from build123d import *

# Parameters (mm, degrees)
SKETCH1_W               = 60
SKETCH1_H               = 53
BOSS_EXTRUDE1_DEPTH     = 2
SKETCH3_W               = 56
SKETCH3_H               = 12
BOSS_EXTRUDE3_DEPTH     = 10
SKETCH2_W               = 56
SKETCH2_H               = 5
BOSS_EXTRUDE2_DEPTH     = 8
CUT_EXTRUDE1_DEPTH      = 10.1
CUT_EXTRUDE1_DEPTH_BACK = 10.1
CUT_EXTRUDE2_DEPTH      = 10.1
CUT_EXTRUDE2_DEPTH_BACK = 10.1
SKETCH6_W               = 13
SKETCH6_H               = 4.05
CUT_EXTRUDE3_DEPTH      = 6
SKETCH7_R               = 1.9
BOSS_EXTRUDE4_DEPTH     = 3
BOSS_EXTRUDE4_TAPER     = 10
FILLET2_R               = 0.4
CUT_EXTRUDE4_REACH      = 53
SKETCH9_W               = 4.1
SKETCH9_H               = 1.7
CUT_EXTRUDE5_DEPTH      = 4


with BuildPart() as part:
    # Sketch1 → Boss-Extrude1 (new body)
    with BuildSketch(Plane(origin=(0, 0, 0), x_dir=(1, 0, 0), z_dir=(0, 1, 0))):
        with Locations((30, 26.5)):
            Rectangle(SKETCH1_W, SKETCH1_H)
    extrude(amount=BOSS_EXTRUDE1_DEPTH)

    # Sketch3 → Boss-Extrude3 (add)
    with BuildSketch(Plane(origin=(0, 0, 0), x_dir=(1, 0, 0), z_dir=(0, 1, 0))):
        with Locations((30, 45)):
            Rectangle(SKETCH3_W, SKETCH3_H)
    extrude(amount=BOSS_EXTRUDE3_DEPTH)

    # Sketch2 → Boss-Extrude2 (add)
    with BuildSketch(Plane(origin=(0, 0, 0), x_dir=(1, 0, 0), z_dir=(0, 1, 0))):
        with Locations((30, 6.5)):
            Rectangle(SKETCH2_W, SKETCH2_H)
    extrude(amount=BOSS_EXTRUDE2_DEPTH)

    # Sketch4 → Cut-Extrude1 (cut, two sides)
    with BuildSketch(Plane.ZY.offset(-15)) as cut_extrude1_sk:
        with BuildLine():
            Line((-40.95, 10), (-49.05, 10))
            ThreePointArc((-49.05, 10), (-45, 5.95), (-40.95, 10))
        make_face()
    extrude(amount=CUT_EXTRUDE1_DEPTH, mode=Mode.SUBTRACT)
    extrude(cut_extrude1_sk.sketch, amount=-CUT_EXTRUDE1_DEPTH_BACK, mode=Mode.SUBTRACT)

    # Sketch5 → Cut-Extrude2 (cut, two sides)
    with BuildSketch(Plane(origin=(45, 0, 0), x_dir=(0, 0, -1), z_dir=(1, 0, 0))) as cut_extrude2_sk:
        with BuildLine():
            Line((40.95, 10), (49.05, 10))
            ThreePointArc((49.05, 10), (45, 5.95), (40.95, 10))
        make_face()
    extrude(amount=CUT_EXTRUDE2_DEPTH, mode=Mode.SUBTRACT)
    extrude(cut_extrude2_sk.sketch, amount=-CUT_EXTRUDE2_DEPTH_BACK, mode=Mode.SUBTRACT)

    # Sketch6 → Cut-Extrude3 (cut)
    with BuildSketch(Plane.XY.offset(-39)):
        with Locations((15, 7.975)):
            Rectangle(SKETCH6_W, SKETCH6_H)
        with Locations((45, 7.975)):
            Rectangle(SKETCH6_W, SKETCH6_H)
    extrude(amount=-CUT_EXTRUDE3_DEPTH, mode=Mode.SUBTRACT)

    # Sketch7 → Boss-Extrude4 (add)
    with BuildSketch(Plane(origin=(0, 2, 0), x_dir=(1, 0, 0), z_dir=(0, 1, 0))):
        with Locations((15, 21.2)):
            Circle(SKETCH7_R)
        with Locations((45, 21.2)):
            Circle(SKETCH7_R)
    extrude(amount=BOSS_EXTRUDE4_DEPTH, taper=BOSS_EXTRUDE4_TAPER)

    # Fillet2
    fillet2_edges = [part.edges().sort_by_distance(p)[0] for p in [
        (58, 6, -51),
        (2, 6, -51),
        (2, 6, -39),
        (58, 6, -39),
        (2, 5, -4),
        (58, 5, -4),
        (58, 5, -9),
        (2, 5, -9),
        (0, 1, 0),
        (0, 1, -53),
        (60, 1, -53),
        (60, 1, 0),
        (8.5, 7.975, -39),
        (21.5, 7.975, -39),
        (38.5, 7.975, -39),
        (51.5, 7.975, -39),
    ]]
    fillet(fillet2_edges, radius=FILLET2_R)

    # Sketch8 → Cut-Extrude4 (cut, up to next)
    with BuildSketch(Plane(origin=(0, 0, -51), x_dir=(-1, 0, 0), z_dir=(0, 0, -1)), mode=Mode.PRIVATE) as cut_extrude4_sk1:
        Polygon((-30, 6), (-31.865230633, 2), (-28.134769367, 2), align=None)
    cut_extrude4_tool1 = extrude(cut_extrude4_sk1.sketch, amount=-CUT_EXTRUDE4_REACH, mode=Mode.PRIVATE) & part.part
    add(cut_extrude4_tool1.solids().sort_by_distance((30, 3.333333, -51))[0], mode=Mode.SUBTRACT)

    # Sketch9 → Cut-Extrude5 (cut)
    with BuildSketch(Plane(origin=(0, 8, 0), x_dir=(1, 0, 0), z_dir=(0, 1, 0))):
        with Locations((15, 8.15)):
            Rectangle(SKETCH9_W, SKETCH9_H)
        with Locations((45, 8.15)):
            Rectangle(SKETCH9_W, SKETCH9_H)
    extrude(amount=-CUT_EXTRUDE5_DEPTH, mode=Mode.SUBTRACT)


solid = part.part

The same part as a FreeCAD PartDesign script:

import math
import FreeCAD as App
import Part
import Sketcher
from FreeCAD import Vector
Q = App.Units.Quantity


def edges_at(feature, points):
    """Names of the edges that pass closest to the given points."""
    edges = feature.Shape.Edges
    near = lambda p: min(range(len(edges)), key=lambda i: edges[i].distToShape(Part.Vertex(*p))[0])
    return sorted({f"Edge{near(p) + 1}" for p in points})

doc = App.newDocument("Part")
body = doc.addObject("PartDesign::Body", "Body")

# Sketch on XZ plane
sketch1 = body.newObject("Sketcher::SketchObject", "Sketch")
sketch1.AttachmentSupport = (doc.getObject("XZ_Plane"), [""])
sketch1.MapMode = "FlatFace"
sketch1.addGeometry(Part.LineSegment(Vector(0, -53, 0), Vector(0, 0, 0)), False)
sketch1.addGeometry(Part.LineSegment(Vector(0, 0, 0), Vector(60, 0, 0)), False)
sketch1.addGeometry(Part.LineSegment(Vector(60, 0, 0), Vector(60, -53, 0)), False)
sketch1.addGeometry(Part.LineSegment(Vector(60, -53, 0), Vector(0, -53, 0)), False)
sketch1.addConstraint(Sketcher.Constraint("Coincident", 0, 2, 1, 1))
sketch1.addConstraint(Sketcher.Constraint("Coincident", 1, 2, 2, 1))
sketch1.addConstraint(Sketcher.Constraint("Coincident", 2, 2, 3, 1))
sketch1.addConstraint(Sketcher.Constraint("Coincident", 3, 2, 0, 1))
sketch1.addConstraint(Sketcher.Constraint("Vertical", 0))
sketch1.addConstraint(Sketcher.Constraint("Horizontal", 1))
sketch1.addConstraint(Sketcher.Constraint("Vertical", 2))
sketch1.addConstraint(Sketcher.Constraint("Horizontal", 3))
sketch1.addConstraint(Sketcher.Constraint("Coincident", 0, 2, -1, 1))
sketch1.addConstraint(Sketcher.Constraint("DistanceX", 1, 1, 1, 2, Q("60 mm")))
sketch1.addConstraint(Sketcher.Constraint("DistanceY", 0, 1, 0, 2, Q("53 mm")))
pad1 = body.newObject("PartDesign::Pad", "Pad")
pad1.Profile = sketch1
pad1.Length = 2
pad1.Reversed = True

# Sketch on XZ plane
sketch2 = body.newObject("Sketcher::SketchObject", "Sketch001")
sketch2.AttachmentSupport = (doc.getObject("XZ_Plane"), [""])
sketch2.MapMode = "FlatFace"
sketch2.addGeometry(Part.LineSegment(Vector(2, -51, 0), Vector(2, -39, 0)), False)
sketch2.addGeometry(Part.LineSegment(Vector(2, -39, 0), Vector(58, -39, 0)), False)
sketch2.addGeometry(Part.LineSegment(Vector(58, -39, 0), Vector(58, -51, 0)), False)
sketch2.addGeometry(Part.LineSegment(Vector(58, -51, 0), Vector(2, -51, 0)), False)
sketch2.addConstraint(Sketcher.Constraint("Coincident", 0, 2, 1, 1))
sketch2.addConstraint(Sketcher.Constraint("Coincident", 1, 2, 2, 1))
sketch2.addConstraint(Sketcher.Constraint("Coincident", 2, 2, 3, 1))
sketch2.addConstraint(Sketcher.Constraint("Coincident", 3, 2, 0, 1))
sketch2.addConstraint(Sketcher.Constraint("Vertical", 0))
sketch2.addConstraint(Sketcher.Constraint("Horizontal", 1))
sketch2.addConstraint(Sketcher.Constraint("Vertical", 2))
sketch2.addConstraint(Sketcher.Constraint("Horizontal", 3))
sketch2.addConstraint(Sketcher.Constraint("DistanceX", 1, 1, 1, 2, Q("56 mm")))
sketch2.addConstraint(Sketcher.Constraint("DistanceY", 0, 1, 0, 2, Q("12 mm")))
sketch2.addConstraint(Sketcher.Constraint("DistanceX", -1, 1, 0, 2, Q("2 mm")))
sketch2.addConstraint(Sketcher.Constraint("DistanceY", 0, 2, -1, 1, Q("39 mm")))
pad2 = body.newObject("PartDesign::Pad", "Pad001")
pad2.Profile = sketch2
pad2.Length = 10
pad2.Reversed = True

# Sketch on XZ plane
sketch3 = body.newObject("Sketcher::SketchObject", "Sketch002")
sketch3.AttachmentSupport = (doc.getObject("XZ_Plane"), [""])
sketch3.MapMode = "FlatFace"
sketch3.addGeometry(Part.LineSegment(Vector(2, -9, 0), Vector(2, -4, 0)), False)
sketch3.addGeometry(Part.LineSegment(Vector(2, -4, 0), Vector(58, -4, 0)), False)
sketch3.addGeometry(Part.LineSegment(Vector(58, -4, 0), Vector(58, -9, 0)), False)
sketch3.addGeometry(Part.LineSegment(Vector(58, -9, 0), Vector(2, -9, 0)), False)
sketch3.addConstraint(Sketcher.Constraint("Coincident", 0, 2, 1, 1))
sketch3.addConstraint(Sketcher.Constraint("Coincident", 1, 2, 2, 1))
sketch3.addConstraint(Sketcher.Constraint("Coincident", 2, 2, 3, 1))
sketch3.addConstraint(Sketcher.Constraint("Coincident", 3, 2, 0, 1))
sketch3.addConstraint(Sketcher.Constraint("Vertical", 0))
sketch3.addConstraint(Sketcher.Constraint("Horizontal", 1))
sketch3.addConstraint(Sketcher.Constraint("Vertical", 2))
sketch3.addConstraint(Sketcher.Constraint("Horizontal", 3))
sketch3.addConstraint(Sketcher.Constraint("DistanceX", 1, 1, 1, 2, Q("56 mm")))
sketch3.addConstraint(Sketcher.Constraint("DistanceY", 0, 1, 0, 2, Q("5 mm")))
sketch3.addConstraint(Sketcher.Constraint("DistanceX", -1, 1, 0, 2, Q("2 mm")))
sketch3.addConstraint(Sketcher.Constraint("DistanceY", 0, 2, -1, 1, Q("4 mm")))
pad3 = body.newObject("PartDesign::Pad", "Pad002")
pad3.Profile = sketch3
pad3.Length = 8
pad3.Reversed = True

# Sketch on YZ plane
sketch4 = body.newObject("Sketcher::SketchObject", "Sketch003")
sketch4.AttachmentSupport = (doc.getObject("YZ_Plane"), [""])
sketch4.MapMode = "FlatFace"
sketch4.AttachmentOffset = App.Placement(Vector(0, 0, 15), App.Rotation())
sketch4.addGeometry(Part.LineSegment(Vector(10, -41, 0), Vector(10, -49, 0)), False)
sketch4.addGeometry(Part.ArcOfCircle(Part.Circle(Vector(10, -45, 0), Vector(0, 0, 1), 4), math.radians(90), math.radians(270)), False)
sketch4.addConstraint(Sketcher.Constraint("Coincident", 0, 1, 1, 1))
sketch4.addConstraint(Sketcher.Constraint("Coincident", 1, 2, 0, 2))
sketch4.addConstraint(Sketcher.Constraint("Vertical", 0))
sketch4.addConstraint(Sketcher.Constraint("Vertical", 1, 3, 0, 1))
sketch4.addConstraint(Sketcher.Constraint("Radius", 1, Q("4.05 mm")))
sketch4.addConstraint(Sketcher.Constraint("DistanceX", -1, 1, 1, 3, Q("10 mm")))
sketch4.addConstraint(Sketcher.Constraint("DistanceY", 1, 3, -1, 1, Q("45 mm")))
pocket1 = body.newObject("PartDesign::Pocket", "Pocket")
pocket1.Profile = sketch4
pocket1.Type = "TwoLengths"
pocket1.Length = 10.1
pocket1.Length2 = 10.1

# Sketch on YZ plane
sketch5 = body.newObject("Sketcher::SketchObject", "Sketch004")
sketch5.AttachmentSupport = (doc.getObject("YZ_Plane"), [""])
sketch5.MapMode = "FlatFace"
sketch5.AttachmentOffset = App.Placement(Vector(0, 0, 45), App.Rotation())
sketch5.addGeometry(Part.LineSegment(Vector(10, -49, 0), Vector(10, -41, 0)), False)
sketch5.addGeometry(Part.ArcOfCircle(Part.Circle(Vector(10, -45, 0), Vector(0, 0, 1), 4), math.radians(90), math.radians(270)), False)
sketch5.addConstraint(Sketcher.Constraint("Coincident", 0, 1, 1, 2))
sketch5.addConstraint(Sketcher.Constraint("Coincident", 1, 1, 0, 2))
sketch5.addConstraint(Sketcher.Constraint("Vertical", 0))
sketch5.addConstraint(Sketcher.Constraint("Vertical", 1, 3, 0, 1))
sketch5.addConstraint(Sketcher.Constraint("Radius", 1, Q("4.05 mm")))
sketch5.addConstraint(Sketcher.Constraint("DistanceX", -1, 1, 1, 3, Q("10 mm")))
sketch5.addConstraint(Sketcher.Constraint("DistanceY", 1, 3, -1, 1, Q("45 mm")))
pocket2 = body.newObject("PartDesign::Pocket", "Pocket001")
pocket2.Profile = sketch5
pocket2.Type = "TwoLengths"
pocket2.Length = 10.1
pocket2.Length2 = 10.1
pocket2.Reversed = True

# Sketch on XY plane
sketch6 = body.newObject("Sketcher::SketchObject", "Sketch005")
sketch6.AttachmentSupport = (doc.getObject("XY_Plane"), [""])
sketch6.MapMode = "FlatFace"
sketch6.AttachmentOffset = App.Placement(Vector(0, 0, -39), App.Rotation())
sketch6.addGeometry(Part.LineSegment(Vector(8.5, 10, 0), Vector(8.5, 6, 0)), False)
sketch6.addGeometry(Part.LineSegment(Vector(8.5, 6, 0), Vector(21.5, 6, 0)), False)
sketch6.addGeometry(Part.LineSegment(Vector(21.5, 6, 0), Vector(21.5, 10, 0)), False)
sketch6.addGeometry(Part.LineSegment(Vector(21.5, 10, 0), Vector(8.5, 10, 0)), False)
sketch6.addGeometry(Part.LineSegment(Vector(38.5, 10, 0), Vector(38.5, 6, 0)), False)
sketch6.addGeometry(Part.LineSegment(Vector(38.5, 6, 0), Vector(51.5, 6, 0)), False)
sketch6.addGeometry(Part.LineSegment(Vector(51.5, 6, 0), Vector(51.5, 10, 0)), False)
sketch6.addGeometry(Part.LineSegment(Vector(51.5, 10, 0), Vector(38.5, 10, 0)), False)
sketch6.addConstraint(Sketcher.Constraint("Coincident", 0, 2, 1, 1))
sketch6.addConstraint(Sketcher.Constraint("Coincident", 1, 2, 2, 1))
sketch6.addConstraint(Sketcher.Constraint("Coincident", 2, 2, 3, 1))
sketch6.addConstraint(Sketcher.Constraint("Coincident", 3, 2, 0, 1))
sketch6.addConstraint(Sketcher.Constraint("Coincident", 4, 2, 5, 1))
sketch6.addConstraint(Sketcher.Constraint("Coincident", 5, 2, 6, 1))
sketch6.addConstraint(Sketcher.Constraint("Coincident", 6, 2, 7, 1))
sketch6.addConstraint(Sketcher.Constraint("Coincident", 7, 2, 4, 1))
sketch6.addConstraint(Sketcher.Constraint("Vertical", 0))
sketch6.addConstraint(Sketcher.Constraint("Horizontal", 1))
sketch6.addConstraint(Sketcher.Constraint("Vertical", 2))
sketch6.addConstraint(Sketcher.Constraint("Horizontal", 3))
sketch6.addConstraint(Sketcher.Constraint("Vertical", 4))
sketch6.addConstraint(Sketcher.Constraint("Horizontal", 5))
sketch6.addConstraint(Sketcher.Constraint("Vertical", 6))
sketch6.addConstraint(Sketcher.Constraint("Horizontal", 7))
sketch6.addConstraint(Sketcher.Constraint("Horizontal", 1, 2, 4, 2))
sketch6.addConstraint(Sketcher.Constraint("Horizontal", 3, 2, 6, 2))
sketch6.addConstraint(Sketcher.Constraint("Equal", 3, 5))
sketch6.addConstraint(Sketcher.Constraint("DistanceX", 1, 1, 1, 2, Q("13 mm")))
sketch6.addConstraint(Sketcher.Constraint("DistanceY", -1, 1, 2, 2, Q("10 mm")))
sketch6.addConstraint(Sketcher.Constraint("DistanceX", 1, 2, 4, 2, Q("17 mm")))
sketch6.addConstraint(Sketcher.Constraint("DistanceY", 0, 2, 0, 1, Q("4.05 mm")))
sketch6.addConstraint(Sketcher.Constraint("DistanceX", -1, 1, 0, 2, Q("8.5 mm")))
pocket3 = body.newObject("PartDesign::Pocket", "Pocket002")
pocket3.Profile = sketch6
pocket3.Length = 6

# Sketch on XZ plane
sketch7 = body.newObject("Sketcher::SketchObject", "Sketch006")
sketch7.AttachmentSupport = (doc.getObject("XZ_Plane"), [""])
sketch7.MapMode = "FlatFace"
sketch7.AttachmentOffset = App.Placement(Vector(0, 0, -2), App.Rotation())
sketch7.addGeometry(Part.Circle(Vector(15, -21.2, 0), Vector(0, 0, 1), 1.9), False)
sketch7.addGeometry(Part.Circle(Vector(45, -21.2, 0), Vector(0, 0, 1), 1.9), False)
sketch7.addConstraint(Sketcher.Constraint("Equal", 0, 1))
sketch7.addConstraint(Sketcher.Constraint("Horizontal", 0, 3, 1, 3))
sketch7.addConstraint(Sketcher.Constraint("Diameter", 0, Q("3.8 mm")))
sketch7.addConstraint(Sketcher.Constraint("DistanceX", -1, 1, 0, 3, Q("15 mm")))
sketch7.addConstraint(Sketcher.Constraint("DistanceX", -1, 1, 1, 3, Q("45 mm")))
sketch7.addConstraint(Sketcher.Constraint("DistanceY", 0, 3, -1, 1, Q("21.2 mm")))
pad4 = body.newObject("PartDesign::Pad", "Pad003")
pad4.Profile = sketch7
pad4.Length = 3
pad4.Reversed = True
pad4.TaperAngle = -10
doc.recompute()

fillet = body.newObject("PartDesign::Fillet", "Fillet")
fillet.Base = (pad4, edges_at(pad4, [
    (58, 6, -51),
    (2, 6, -51),
    (2, 6, -39),
    (58, 6, -39),
    (2, 5, -4),
    (58, 5, -4),
    (58, 5, -9),
    (2, 5, -9),
    (0, 1, 0),
    (0, 1, -53),
    (60, 1, -53),
    (60, 1, 0),
    (8.5, 7.975, -39),
    (21.5, 7.975, -39),
    (38.5, 7.975, -39),
    (51.5, 7.975, -39),
]))
fillet.Radius = 0.4

# Sketch on XY plane
sketch8 = body.newObject("Sketcher::SketchObject", "Sketch007")
sketch8.AttachmentSupport = (doc.getObject("XY_Plane"), [""])
sketch8.MapMode = "FlatFace"
sketch8.AttachmentOffset = App.Placement(Vector(0, 0, -51), App.Rotation())
sketch8.addGeometry(Part.LineSegment(Vector(30, 6, 0), Vector(31.9, 2, 0)), False)
sketch8.addGeometry(Part.LineSegment(Vector(31.9, 2, 0), Vector(28.1, 2, 0)), False)
sketch8.addGeometry(Part.LineSegment(Vector(28.1, 2, 0), Vector(30, 6, 0)), False)
sketch8.addConstraint(Sketcher.Constraint("Coincident", 0, 2, 1, 1))
sketch8.addConstraint(Sketcher.Constraint("Coincident", 1, 2, 2, 1))
sketch8.addConstraint(Sketcher.Constraint("Coincident", 2, 2, 0, 1))
sketch8.addConstraint(Sketcher.Constraint("Horizontal", 1))
sketch8.addConstraint(Sketcher.Constraint("Equal", 0, 2))
sketch8.addConstraint(Sketcher.Constraint("Angle", 0, Q("-65 deg")))
sketch8.addConstraint(Sketcher.Constraint("DistanceY", -1, 1, 0, 2, Q("2 mm")))
sketch8.addConstraint(Sketcher.Constraint("DistanceX", -1, 1, 2, 2, Q("30 mm")))
sketch8.addConstraint(Sketcher.Constraint("DistanceY", -1, 1, 2, 2, Q("6 mm")))
pocket4 = body.newObject("PartDesign::Pocket", "Pocket003")
pocket4.Profile = sketch8
pocket4.Type = "UpToFirst"
pocket4.Reversed = True

# Sketch on XZ plane
sketch9 = body.newObject("Sketcher::SketchObject", "Sketch008")
sketch9.AttachmentSupport = (doc.getObject("XZ_Plane"), [""])
sketch9.MapMode = "FlatFace"
sketch9.AttachmentOffset = App.Placement(Vector(0, 0, -8), App.Rotation())
sketch9.addGeometry(Part.LineSegment(Vector(12.9, -9, 0), Vector(12.9, -7.3, 0)), False)
sketch9.addGeometry(Part.LineSegment(Vector(12.9, -7.3, 0), Vector(17.1, -7.3, 0)), False)
sketch9.addGeometry(Part.LineSegment(Vector(17.1, -7.3, 0), Vector(17.1, -9, 0)), False)
sketch9.addGeometry(Part.LineSegment(Vector(17.1, -9, 0), Vector(12.9, -9, 0)), False)
sketch9.addGeometry(Part.LineSegment(Vector(43, -9, 0), Vector(43, -7.3, 0)), False)
sketch9.addGeometry(Part.LineSegment(Vector(43, -7.3, 0), Vector(47, -7.3, 0)), False)
sketch9.addGeometry(Part.LineSegment(Vector(47, -7.3, 0), Vector(47, -9, 0)), False)
sketch9.addGeometry(Part.LineSegment(Vector(47, -9, 0), Vector(43, -9, 0)), False)
sketch9.addConstraint(Sketcher.Constraint("Coincident", 0, 2, 1, 1))
sketch9.addConstraint(Sketcher.Constraint("Coincident", 1, 2, 2, 1))
sketch9.addConstraint(Sketcher.Constraint("Coincident", 2, 2, 3, 1))
sketch9.addConstraint(Sketcher.Constraint("Coincident", 3, 2, 0, 1))
sketch9.addConstraint(Sketcher.Constraint("Coincident", 4, 2, 5, 1))
sketch9.addConstraint(Sketcher.Constraint("Coincident", 5, 2, 6, 1))
sketch9.addConstraint(Sketcher.Constraint("Coincident", 6, 2, 7, 1))
sketch9.addConstraint(Sketcher.Constraint("Coincident", 7, 2, 4, 1))
sketch9.addConstraint(Sketcher.Constraint("Vertical", 0))
sketch9.addConstraint(Sketcher.Constraint("Horizontal", 1))
sketch9.addConstraint(Sketcher.Constraint("Vertical", 2))
sketch9.addConstraint(Sketcher.Constraint("Horizontal", 3))
sketch9.addConstraint(Sketcher.Constraint("Vertical", 4))
sketch9.addConstraint(Sketcher.Constraint("Horizontal", 5))
sketch9.addConstraint(Sketcher.Constraint("Vertical", 6))
sketch9.addConstraint(Sketcher.Constraint("Horizontal", 7))
sketch9.addConstraint(Sketcher.Constraint("Horizontal", 1, 2, 4, 2))
sketch9.addConstraint(Sketcher.Constraint("Horizontal", 3, 2, 6, 2))
sketch9.addConstraint(Sketcher.Constraint("Equal", 3, 5))
sketch9.addConstraint(Sketcher.Constraint("DistanceX", 1, 1, 1, 2, Q("4.1 mm")))
sketch9.addConstraint(Sketcher.Constraint("DistanceY", 0, 1, 0, 2, Q("1.7 mm")))
sketch9.addConstraint(Sketcher.Constraint("DistanceY", 2, 2, -1, 1, Q("9 mm")))
sketch9.addConstraint(Sketcher.Constraint("DistanceX", 0, 2, 4, 2, Q("30 mm")))
sketch9.addConstraint(Sketcher.Constraint("DistanceX", -1, 1, 0, 2, Q("12.95 mm")))
pocket5 = body.newObject("PartDesign::Pocket", "Pocket004")
pocket5.Profile = sketch9
pocket5.Length = 4
pocket5.Reversed = True

doc.recompute()
